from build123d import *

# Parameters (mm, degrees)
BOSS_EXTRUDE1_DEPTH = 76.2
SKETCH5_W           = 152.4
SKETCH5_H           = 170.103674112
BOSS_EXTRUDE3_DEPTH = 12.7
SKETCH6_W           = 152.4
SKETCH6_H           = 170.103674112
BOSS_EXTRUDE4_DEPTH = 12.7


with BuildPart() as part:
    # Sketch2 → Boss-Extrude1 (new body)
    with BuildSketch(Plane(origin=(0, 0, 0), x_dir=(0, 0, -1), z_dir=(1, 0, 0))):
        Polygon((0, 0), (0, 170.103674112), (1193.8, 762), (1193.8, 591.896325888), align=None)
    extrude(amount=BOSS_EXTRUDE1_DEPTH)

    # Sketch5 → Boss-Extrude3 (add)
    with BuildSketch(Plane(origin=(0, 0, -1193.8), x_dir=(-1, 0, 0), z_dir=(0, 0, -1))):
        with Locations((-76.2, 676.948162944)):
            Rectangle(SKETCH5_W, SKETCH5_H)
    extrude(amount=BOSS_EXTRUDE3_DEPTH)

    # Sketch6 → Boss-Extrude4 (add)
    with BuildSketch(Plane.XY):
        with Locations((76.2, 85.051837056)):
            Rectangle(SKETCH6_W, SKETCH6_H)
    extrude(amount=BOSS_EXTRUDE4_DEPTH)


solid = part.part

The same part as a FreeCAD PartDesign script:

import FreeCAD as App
import Part
import Sketcher
Q = App.Units.Quantity

doc = App.newDocument("Part")
body = doc.addObject("PartDesign::Body", "Body")

sketch1 = body.newObject("Sketcher::SketchObject", "Sketch")
sketch1.AttachmentSupport = (doc.getObject("YZ_Plane"), [""])
sketch1.MapMode = "FlatFace"
sketch1.addGeometry([
    Part.LineSegment(App.Vector(170, 0, 0), App.Vector(0, 0, 0)),
    Part.LineSegment(App.Vector(0, 0, 0), App.Vector(592, -1194, 0)),
    Part.LineSegment(App.Vector(592, -1194, 0), App.Vector(762, -1194, 0)),
    Part.LineSegment(App.Vector(762, -1194, 0), App.Vector(170, 0, 0)),
], False)
sketch1.addConstraint([
    Sketcher.Constraint("Coincident", 0, 2, 1, 1),
    Sketcher.Constraint("Coincident", 1, 2, 2, 1),
    Sketcher.Constraint("Coincident", 2, 2, 3, 1),
    Sketcher.Constraint("Coincident", 3, 2, 0, 1),
    Sketcher.Constraint("Horizontal", 0),
    Sketcher.Constraint("Horizontal", 2),
    Sketcher.Constraint("Coincident", 0, 2, -1, 1),
    Sketcher.Constraint("Parallel", 1, 3),
    Sketcher.Constraint("DistanceY", 1, 2, -1, 1, Q("47 in")),
    Sketcher.Constraint("DistanceX", -1, 1, 2, 2, Q("30 in")),
    Sketcher.Constraint("Distance", 1, Q("1332.478781 mm")),
])
pad1 = body.newObject("PartDesign::Pad", "Pad")
pad1.Profile = sketch1
pad1.Length = Q("3 in")

sketch2 = body.newObject("Sketcher::SketchObject", "Sketch001")
sketch2.AttachmentSupport = (doc.getObject("XY_Plane"), [""])
sketch2.MapMode = "FlatFace"
sketch2.AttachmentOffset = App.Placement(App.Vector(0, 0, -47 * 25.4), App.Rotation())
sketch2.addGeometry([
    Part.LineSegment(App.Vector(152, 762, 0), App.Vector(152, 592, 0)),
    Part.LineSegment(App.Vector(152, 592, 0), App.Vector(0, 592, 0)),
    Part.LineSegment(App.Vector(0, 592, 0), App.Vector(0, 762, 0)),
    Part.LineSegment(App.Vector(0, 762, 0), App.Vector(152, 762, 0)),
], False)
sketch2.addConstraint([
    Sketcher.Constraint("Coincident", 0, 2, 1, 1),
    Sketcher.Constraint("Coincident", 1, 2, 2, 1),
    Sketcher.Constraint("Coincident", 2, 2, 3, 1),
    Sketcher.Constraint("Coincident", 3, 2, 0, 1),
    Sketcher.Constraint("Vertical", 0),
    Sketcher.Constraint("Horizontal", 1),
    Sketcher.Constraint("Vertical", 2),
    Sketcher.Constraint("Horizontal", 3),
    Sketcher.Constraint("PointOnObject", 1, 2, -2),
    Sketcher.Constraint("DistanceX", 1, 2, 1, 1, Q("6 in")),
    Sketcher.Constraint("DistanceY", -1, 1, 2, 2, Q("30 in")),
    Sketcher.Constraint("DistanceY", 0, 2, 0, 1, Q("170.103674 mm")),
])
pad2 = body.newObject("PartDesign::Pad", "Pad001")
pad2.Profile = sketch2
pad2.Length = Q("0.5 in")
pad2.Reversed = True

sketch3 = body.newObject("Sketcher::SketchObject", "Sketch002")
sketch3.AttachmentSupport = (doc.getObject("XY_Plane"), [""])
sketch3.MapMode = "FlatFace"
sketch3.addGeometry([
    Part.LineSegment(App.Vector(0, 170, 0), App.Vector(0, 0, 0)),
    Part.LineSegment(App.Vector(0, 0, 0), App.Vector(152, 0, 0)),
    Part.LineSegment(App.Vector(152, 0, 0), App.Vector(152, 170, 0)),
    Part.LineSegment(App.Vector(152, 170, 0), App.Vector(0, 170, 0)),
], False)
sketch3.addConstraint([
    Sketcher.Constraint("Coincident", 0, 2, 1, 1),
    Sketcher.Constraint("Coincident", 1, 2, 2, 1),
    Sketcher.Constraint("Coincident", 2, 2, 3, 1),
    Sketcher.Constraint("Coincident", 3, 2, 0, 1),
    Sketcher.Constraint("Vertical", 0),
    Sketcher.Constraint("Horizontal", 1),
    Sketcher.Constraint("Vertical", 2),
    Sketcher.Constraint("Horizontal", 3),
    Sketcher.Constraint("Coincident", 0, 2, -1, 1),
    Sketcher.Constraint("DistanceX", 1, 1, 1, 2, Q("6 in")),
    Sketcher.Constraint("DistanceY", 0, 2, 0, 1, Q("170.103674 mm")),
])
pad3 = body.newObject("PartDesign::Pad", "Pad002")
pad3.Profile = sketch3
pad3.Length = Q("0.5 in")

doc.recompute()
